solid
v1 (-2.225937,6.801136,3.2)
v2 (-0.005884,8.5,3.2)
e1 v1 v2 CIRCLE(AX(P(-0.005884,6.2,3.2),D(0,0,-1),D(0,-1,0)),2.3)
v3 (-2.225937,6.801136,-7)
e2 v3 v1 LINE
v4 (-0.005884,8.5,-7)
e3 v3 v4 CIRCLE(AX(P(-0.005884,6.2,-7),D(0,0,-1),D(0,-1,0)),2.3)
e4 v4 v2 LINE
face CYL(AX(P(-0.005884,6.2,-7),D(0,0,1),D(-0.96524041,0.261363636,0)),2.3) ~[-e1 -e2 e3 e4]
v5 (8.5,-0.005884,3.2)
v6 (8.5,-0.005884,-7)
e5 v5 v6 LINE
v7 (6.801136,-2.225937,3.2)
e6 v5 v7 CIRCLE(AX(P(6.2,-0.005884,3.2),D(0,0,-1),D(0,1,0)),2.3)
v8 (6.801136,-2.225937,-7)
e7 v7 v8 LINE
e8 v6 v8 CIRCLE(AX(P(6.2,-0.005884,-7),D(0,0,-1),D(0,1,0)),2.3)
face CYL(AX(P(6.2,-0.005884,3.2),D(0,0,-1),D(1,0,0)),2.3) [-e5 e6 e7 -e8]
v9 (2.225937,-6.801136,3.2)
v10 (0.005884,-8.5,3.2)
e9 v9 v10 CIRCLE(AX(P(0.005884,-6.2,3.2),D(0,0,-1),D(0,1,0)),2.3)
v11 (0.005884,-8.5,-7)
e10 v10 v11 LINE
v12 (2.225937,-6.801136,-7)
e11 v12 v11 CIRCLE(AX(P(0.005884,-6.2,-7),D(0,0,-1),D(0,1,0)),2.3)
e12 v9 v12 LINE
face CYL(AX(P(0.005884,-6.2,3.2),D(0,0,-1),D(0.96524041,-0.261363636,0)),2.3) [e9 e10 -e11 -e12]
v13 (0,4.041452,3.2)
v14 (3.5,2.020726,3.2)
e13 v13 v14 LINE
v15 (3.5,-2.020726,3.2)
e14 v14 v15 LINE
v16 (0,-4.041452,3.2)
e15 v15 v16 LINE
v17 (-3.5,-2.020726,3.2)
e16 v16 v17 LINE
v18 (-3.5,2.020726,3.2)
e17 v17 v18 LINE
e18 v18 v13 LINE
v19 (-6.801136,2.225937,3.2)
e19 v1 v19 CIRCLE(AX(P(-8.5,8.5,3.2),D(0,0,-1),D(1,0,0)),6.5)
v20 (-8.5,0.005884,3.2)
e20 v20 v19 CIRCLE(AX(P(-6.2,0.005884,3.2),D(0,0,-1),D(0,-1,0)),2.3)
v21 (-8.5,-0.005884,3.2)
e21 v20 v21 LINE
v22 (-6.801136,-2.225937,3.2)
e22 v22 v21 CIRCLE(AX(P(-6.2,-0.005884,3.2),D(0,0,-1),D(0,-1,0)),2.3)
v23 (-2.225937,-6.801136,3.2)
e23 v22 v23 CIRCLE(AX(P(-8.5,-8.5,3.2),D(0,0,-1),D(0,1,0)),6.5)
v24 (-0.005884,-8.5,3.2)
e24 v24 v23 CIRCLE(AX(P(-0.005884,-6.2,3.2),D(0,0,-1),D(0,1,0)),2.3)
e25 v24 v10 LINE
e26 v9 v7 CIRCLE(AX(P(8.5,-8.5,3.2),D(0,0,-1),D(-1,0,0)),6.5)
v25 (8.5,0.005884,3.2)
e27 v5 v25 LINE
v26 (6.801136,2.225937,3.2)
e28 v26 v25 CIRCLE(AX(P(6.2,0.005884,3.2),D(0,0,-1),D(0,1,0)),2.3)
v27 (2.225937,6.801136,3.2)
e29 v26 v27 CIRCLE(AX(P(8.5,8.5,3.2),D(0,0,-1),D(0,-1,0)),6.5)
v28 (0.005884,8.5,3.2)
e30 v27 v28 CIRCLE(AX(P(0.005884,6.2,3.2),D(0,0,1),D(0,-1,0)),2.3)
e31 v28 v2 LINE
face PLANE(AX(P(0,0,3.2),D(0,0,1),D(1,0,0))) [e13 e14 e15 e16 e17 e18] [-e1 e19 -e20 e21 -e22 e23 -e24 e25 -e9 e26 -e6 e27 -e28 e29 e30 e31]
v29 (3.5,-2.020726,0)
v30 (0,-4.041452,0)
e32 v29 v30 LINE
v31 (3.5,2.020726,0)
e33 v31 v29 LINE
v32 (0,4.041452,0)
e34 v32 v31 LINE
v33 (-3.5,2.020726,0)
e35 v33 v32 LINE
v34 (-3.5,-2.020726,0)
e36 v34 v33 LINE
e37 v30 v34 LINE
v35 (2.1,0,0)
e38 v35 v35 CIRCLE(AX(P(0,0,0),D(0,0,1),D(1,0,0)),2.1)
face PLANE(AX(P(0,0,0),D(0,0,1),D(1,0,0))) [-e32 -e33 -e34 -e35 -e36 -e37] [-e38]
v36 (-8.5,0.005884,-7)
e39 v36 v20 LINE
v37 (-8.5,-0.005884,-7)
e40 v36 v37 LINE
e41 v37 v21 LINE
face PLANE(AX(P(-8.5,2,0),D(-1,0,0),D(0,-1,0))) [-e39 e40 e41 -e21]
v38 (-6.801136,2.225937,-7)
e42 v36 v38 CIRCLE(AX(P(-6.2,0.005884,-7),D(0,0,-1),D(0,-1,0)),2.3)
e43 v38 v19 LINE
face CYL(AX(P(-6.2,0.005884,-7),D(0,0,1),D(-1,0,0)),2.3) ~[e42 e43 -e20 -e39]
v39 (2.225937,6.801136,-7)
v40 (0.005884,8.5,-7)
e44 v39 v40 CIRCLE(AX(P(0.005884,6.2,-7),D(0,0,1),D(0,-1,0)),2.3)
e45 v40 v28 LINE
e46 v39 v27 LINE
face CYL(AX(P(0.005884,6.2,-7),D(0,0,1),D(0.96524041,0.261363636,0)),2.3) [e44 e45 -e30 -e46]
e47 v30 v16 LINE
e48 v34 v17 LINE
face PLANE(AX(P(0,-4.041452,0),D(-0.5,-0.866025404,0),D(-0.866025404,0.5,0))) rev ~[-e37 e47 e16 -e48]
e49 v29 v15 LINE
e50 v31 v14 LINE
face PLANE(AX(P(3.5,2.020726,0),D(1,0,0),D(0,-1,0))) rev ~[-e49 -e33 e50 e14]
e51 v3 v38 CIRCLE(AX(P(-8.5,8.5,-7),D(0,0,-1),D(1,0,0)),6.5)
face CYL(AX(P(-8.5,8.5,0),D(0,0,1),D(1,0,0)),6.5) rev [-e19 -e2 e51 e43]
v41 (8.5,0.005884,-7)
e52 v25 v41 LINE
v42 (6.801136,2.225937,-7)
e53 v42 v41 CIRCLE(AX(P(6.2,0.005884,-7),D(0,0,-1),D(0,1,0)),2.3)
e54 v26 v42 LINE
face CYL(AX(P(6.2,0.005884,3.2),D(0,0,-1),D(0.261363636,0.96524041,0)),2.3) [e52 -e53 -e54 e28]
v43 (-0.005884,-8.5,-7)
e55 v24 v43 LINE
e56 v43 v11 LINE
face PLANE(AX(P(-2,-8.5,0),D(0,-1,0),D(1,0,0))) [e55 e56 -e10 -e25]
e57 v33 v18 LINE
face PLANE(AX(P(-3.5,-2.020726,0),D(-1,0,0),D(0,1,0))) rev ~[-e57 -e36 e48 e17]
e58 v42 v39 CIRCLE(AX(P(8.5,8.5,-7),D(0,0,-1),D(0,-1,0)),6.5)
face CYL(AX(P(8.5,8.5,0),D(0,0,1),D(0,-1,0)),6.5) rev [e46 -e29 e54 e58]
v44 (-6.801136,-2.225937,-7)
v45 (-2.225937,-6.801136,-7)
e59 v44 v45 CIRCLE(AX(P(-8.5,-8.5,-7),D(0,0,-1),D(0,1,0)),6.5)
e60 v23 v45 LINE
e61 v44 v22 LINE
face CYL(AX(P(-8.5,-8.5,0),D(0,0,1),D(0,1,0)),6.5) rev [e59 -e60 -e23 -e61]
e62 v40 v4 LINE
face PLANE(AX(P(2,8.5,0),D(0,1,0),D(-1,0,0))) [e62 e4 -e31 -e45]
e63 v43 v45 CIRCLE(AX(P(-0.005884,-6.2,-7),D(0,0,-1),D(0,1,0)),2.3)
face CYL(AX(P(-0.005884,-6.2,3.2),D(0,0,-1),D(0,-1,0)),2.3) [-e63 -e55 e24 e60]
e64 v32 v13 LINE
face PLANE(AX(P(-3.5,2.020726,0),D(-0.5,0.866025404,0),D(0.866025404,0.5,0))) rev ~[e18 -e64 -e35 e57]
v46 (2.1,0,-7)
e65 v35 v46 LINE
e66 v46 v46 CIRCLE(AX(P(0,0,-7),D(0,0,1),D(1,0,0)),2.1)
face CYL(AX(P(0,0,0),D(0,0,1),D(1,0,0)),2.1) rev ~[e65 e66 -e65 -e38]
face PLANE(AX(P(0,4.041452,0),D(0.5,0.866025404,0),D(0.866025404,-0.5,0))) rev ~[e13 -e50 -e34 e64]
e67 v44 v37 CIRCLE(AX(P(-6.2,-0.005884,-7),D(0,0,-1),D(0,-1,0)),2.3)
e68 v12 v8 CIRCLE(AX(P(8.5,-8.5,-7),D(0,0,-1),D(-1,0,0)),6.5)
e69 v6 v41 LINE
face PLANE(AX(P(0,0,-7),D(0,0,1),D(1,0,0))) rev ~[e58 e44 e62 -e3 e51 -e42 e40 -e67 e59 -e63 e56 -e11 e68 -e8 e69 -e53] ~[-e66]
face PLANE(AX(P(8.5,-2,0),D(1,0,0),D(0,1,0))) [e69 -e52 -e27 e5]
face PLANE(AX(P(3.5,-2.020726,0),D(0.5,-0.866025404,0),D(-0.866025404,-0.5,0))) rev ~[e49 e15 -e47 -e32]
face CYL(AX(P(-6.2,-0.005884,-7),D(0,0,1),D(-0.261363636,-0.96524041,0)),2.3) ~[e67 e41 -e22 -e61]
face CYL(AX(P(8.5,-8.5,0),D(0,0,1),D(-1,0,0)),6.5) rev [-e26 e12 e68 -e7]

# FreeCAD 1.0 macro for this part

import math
import FreeCAD as App
import Part
import Sketcher
from FreeCAD import Vector
Q = App.Units.Quantity


def edges_at(feature, points):
    """Names of the edges that pass closest to the given points."""
    edges = feature.Shape.Edges
    near = lambda p: min(range(len(edges)), key=lambda i: edges[i].distToShape(Part.Vertex(*p))[0])
    return sorted({f"Edge{near(p) + 1}" for p in points})

doc = App.newDocument("Part")
params = doc.addObject("Spreadsheet::Sheet", "Params")
for row, (alias, value) in enumerate([
    ("sketch1_radius", "6.5 mm"),
    ("sketch1_width", "4 mm"),
    ("pad1_length", "3.2 mm"),
    ("sketch2_diameter", "4.2 mm"),
    ("sketch2_radius", "6.5 mm"),
    ("sketch2_width", "4 mm"),
    ("pad2_length", "7 mm"),
    ("fillet_radius", "2.3 mm"),
], start=1):
    params.set(f"A{row}", alias)
    params.set(f"B{row}", "=" + value)
    params.setAlias(f"B{row}", alias)

body = doc.addObject("PartDesign::Body", "Body")

# Sketch on XY plane
sketch1 = body.newObject("Sketcher::SketchObject", "Sketch")
sketch1.AttachmentSupport = (doc.getObject("XY_Plane"), [""])
sketch1.MapMode = "FlatFace"
sketch1.addGeometry(Part.ArcOfCircle(Part.Circle(Vector(8.5, 8.5, 0), Vector(0, 0, 1), 6.5), math.radians(180), math.radians(270)), False)
sketch1.addGeometry(Part.LineSegment(Vector(2, 8.5, 0), Vector(-2, 8.5, 0)), False)
sketch1.addGeometry(Part.ArcOfCircle(Part.Circle(Vector(-8.5, 8.5, 0), Vector(0, 0, 1), 6.5), math.radians(-90), math.radians(0)), False)
sketch1.addGeometry(Part.LineSegment(Vector(-8.5, 2, 0), Vector(-8.5, -2, 0)), False)
sketch1.addGeometry(Part.ArcOfCircle(Part.Circle(Vector(-8.5, -8.5, 0), Vector(0, 0, 1), 6.5), math.radians(0), math.radians(90)), False)
sketch1.addGeometry(Part.LineSegment(Vector(-2, -8.5, 0), Vector(2, -8.5, 0)), False)
sketch1.addGeometry(Part.ArcOfCircle(Part.Circle(Vector(8.5, -8.5, 0), Vector(0, 0, 1), 6.5), math.radians(90), math.radians(180)), False)
sketch1.addGeometry(Part.LineSegment(Vector(8.5, -2, 0), Vector(8.5, 2, 0)), False)
sketch1.addGeometry(Part.LineSegment(Vector(-3.5, 2.020726, 0), Vector(0, 4.041452, 0)), False)
sketch1.addGeometry(Part.LineSegment(Vector(0, 4.041452, 0), Vector(3.5, 2.020726, 0)), False)
sketch1.addGeometry(Part.LineSegment(Vector(3.5, 2.020726, 0), Vector(3.5, -2.020726, 0)), False)
sketch1.addGeometry(Part.LineSegment(Vector(3.5, -2.020726, 0), Vector(0, -4.041452, 0)), False)
sketch1.addGeometry(Part.LineSegment(Vector(0, -4.041452, 0), Vector(-3.5, -2.020726, 0)), False)
sketch1.addGeometry(Part.LineSegment(Vector(-3.5, -2.020726, 0), Vector(-3.5, 2.020726, 0)), False)
sketch1.addConstraint(Sketcher.Constraint("Coincident", 0, 1, 1, 1))
sketch1.addConstraint(Sketcher.Constraint("Coincident", 1, 2, 2, 2))
sketch1.addConstraint(Sketcher.Constraint("Coincident", 2, 1, 3, 1))
sketch1.addConstraint(Sketcher.Constraint("Coincident", 3, 2, 4, 2))
sketch1.addConstraint(Sketcher.Constraint("Coincident", 4, 1, 5, 1))
sketch1.addConstraint(Sketcher.Constraint("Coincident", 5, 2, 6, 2))
sketch1.addConstraint(Sketcher.Constraint("Coincident", 6, 1, 7, 1))
sketch1.addConstraint(Sketcher.Constraint("Coincident", 7, 2, 0, 2))
sketch1.addConstraint(Sketcher.Constraint("Coincident", 8, 2, 9, 1))
sketch1.addConstraint(Sketcher.Constraint("Coincident", 9, 2, 10, 1))
sketch1.addConstraint(Sketcher.Constraint("Coincident", 10, 2, 11, 1))
sketch1.addConstraint(Sketcher.Constraint("Coincident", 11, 2, 12, 1))
sketch1.addConstraint(Sketcher.Constraint("Coincident", 12, 2, 13, 1))
sketch1.addConstraint(Sketcher.Constraint("Coincident", 13, 2, 8, 1))
sketch1.addConstraint(Sketcher.Constraint("Horizontal", 1))
sketch1.addConstraint(Sketcher.Constraint("Vertical", 3))
sketch1.addConstraint(Sketcher.Constraint("Horizontal", 5))
sketch1.addConstraint(Sketcher.Constraint("Vertical", 7))
sketch1.addConstraint(Sketcher.Constraint("Vertical", 10))
sketch1.addConstraint(Sketcher.Constraint("Vertical", 13))
sketch1.addConstraint(Sketcher.Constraint("Equal", 0, 2))
sketch1.addConstraint(Sketcher.Constraint("Equal", 2, 4))
sketch1.addConstraint(Sketcher.Constraint("Equal", 4, 6))
sketch1.addConstraint(Sketcher.Constraint("Symmetric", 0, 3, 4, 3, -1, 1))
sketch1.addConstraint(Sketcher.Constraint("Symmetric", 2, 3, 6, 3, -1, 1))
sketch1.addConstraint(Sketcher.Constraint("Symmetric", 8, 2, 11, 2, -1, 1))
sketch1.addConstraint(Sketcher.Constraint("Symmetric", 9, 2, 12, 2, -1, 1))
sketch1.addConstraint(Sketcher.Constraint("Symmetric", 0, 3, 2, 3, -2))
sketch1.addConstraint(Sketcher.Constraint("PointOnObject", 8, 2, -2))
sketch1.addConstraint(Sketcher.Constraint("Parallel", 8, 11))
sketch1.addConstraint(Sketcher.Constraint("Horizontal", 2, 3, 0, 1))
sketch1.addConstraint(Sketcher.Constraint("Horizontal", 6, 3, 4, 1))
sketch1.addConstraint(Sketcher.Constraint("Horizontal", 10, 2, 12, 2))
sketch1.addConstraint(Sketcher.Constraint("Vertical", 4, 3, 2, 1))
sketch1.addConstraint(Sketcher.Constraint("Vertical", 0, 3, 6, 1))
sketch1.addConstraint(Sketcher.Constraint("Equal", 5, 3))
sketch1.addConstraint(Sketcher.Constraint("Radius", 0, Q("6.5 mm")))
sketch1.addConstraint(Sketcher.Constraint("DistanceX", 1, 2, 1, 1, Q("4 mm")))
sketch1.addConstraint(Sketcher.Constraint("Angle", 8, Q("30 deg")))
sketch1.addConstraint(Sketcher.Constraint("DistanceX", 9, 2, 7, 2, Q("5 mm")))
sketch1.addConstraint(Sketcher.Constraint("DistanceY", 10, 2, 10, 1, Q("4.041452 mm")))
sketch1.setExpression("Constraints[36]", "Params.sketch1_radius")
sketch1.setExpression("Constraints[37]", "Params.sketch1_width")
pad1 = body.newObject("PartDesign::Pad", "Pad")
pad1.Profile = sketch1
pad1.setExpression("Length", "Params.pad1_length")

# Sketch on XY plane
sketch2 = body.newObject("Sketcher::SketchObject", "Sketch001")
sketch2.AttachmentSupport = (doc.getObject("XY_Plane"), [""])
sketch2.MapMode = "FlatFace"
sketch2.addGeometry(Part.ArcOfCircle(Part.Circle(Vector(8.5, 8.5, 0), Vector(0, 0, 1), 6.5), math.radians(180), math.radians(270)), False)
sketch2.addGeometry(Part.LineSegment(Vector(2, 8.5, 0), Vector(-2, 8.5, 0)), False)
sketch2.addGeometry(Part.ArcOfCircle(Part.Circle(Vector(-8.5, 8.5, 0), Vector(0, 0, 1), 6.5), math.radians(-90), math.radians(0)), False)
sketch2.addGeometry(Part.LineSegment(Vector(-8.5, 2, 0), Vector(-8.5, -2, 0)), False)
sketch2.addGeometry(Part.ArcOfCircle(Part.Circle(Vector(-8.5, -8.5, 0), Vector(0, 0, 1), 6.5), math.radians(0), math.radians(90)), False)
sketch2.addGeometry(Part.LineSegment(Vector(-2, -8.5, 0), Vector(2, -8.5, 0)), False)
sketch2.addGeometry(Part.ArcOfCircle(Part.Circle(Vector(8.5, -8.5, 0), Vector(0, 0, 1), 6.5), math.radians(90), math.radians(180)), False)
sketch2.addGeometry(Part.LineSegment(Vector(8.5, -2, 0), Vector(8.5, 2, 0)), False)
sketch2.addGeometry(Part.Circle(Vector(0, 0, 0), Vector(0, 0, 1), 2.1), False)
sketch2.addConstraint(Sketcher.Constraint("Coincident", 0, 1, 1, 1))
sketch2.addConstraint(Sketcher.Constraint("Coincident", 1, 2, 2, 2))
sketch2.addConstraint(Sketcher.Constraint("Coincident", 2, 1, 3, 1))
sketch2.addConstraint(Sketcher.Constraint("Coincident", 3, 2, 4, 2))
sketch2.addConstraint(Sketcher.Constraint("Coincident", 4, 1, 5, 1))
sketch2.addConstraint(Sketcher.Constraint("Coincident", 5, 2, 6, 2))
sketch2.addConstraint(Sketcher.Constraint("Coincident", 6, 1, 7, 1))
sketch2.addConstraint(Sketcher.Constraint("Coincident", 7, 2, 0, 2))
sketch2.addConstraint(Sketcher.Constraint("Horizontal", 1))
sketch2.addConstraint(Sketcher.Constraint("Vertical", 3))
sketch2.addConstraint(Sketcher.Constraint("Horizontal", 5))
sketch2.addConstraint(Sketcher.Constraint("Vertical", 7))
sketch2.addConstraint(Sketcher.Constraint("Coincident", 8, 3, -1, 1))
sketch2.addConstraint(Sketcher.Constraint("Equal", 0, 2))
sketch2.addConstraint(Sketcher.Constraint("Equal", 2, 4))
sketch2.addConstraint(Sketcher.Constraint("Equal", 4, 6))
sketch2.addConstraint(Sketcher.Constraint("Symmetric", 0, 3, 4, 3, -1, 1))
sketch2.addConstraint(Sketcher.Constraint("Symmetric", 2, 3, 6, 3, -1, 1))
sketch2.addConstraint(Sketcher.Constraint("Symmetric", 0, 3, 2, 3, -2))
sketch2.addConstraint(Sketcher.Constraint("Horizontal", 2, 3, 0, 1))
sketch2.addConstraint(Sketcher.Constraint("Horizontal", 6, 3, 4, 1))
sketch2.addConstraint(Sketcher.Constraint("Vertical", 4, 3, 2, 1))
sketch2.addConstraint(Sketcher.Constraint("Vertical", 0, 3, 6, 1))
sketch2.addConstraint(Sketcher.Constraint("Equal", 5, 3))
sketch2.addConstraint(Sketcher.Constraint("Diameter", 8, Q("4.2 mm")))
sketch2.addConstraint(Sketcher.Constraint("Radius", 0, Q("6.5 mm")))
sketch2.addConstraint(Sketcher.Constraint("DistanceX", 1, 2, 1, 1, Q("4 mm")))
sketch2.setExpression("Constraints[24]", "Params.sketch2_diameter")
sketch2.setExpression("Constraints[25]", "Params.sketch2_radius")
sketch2.setExpression("Constraints[26]", "Params.sketch2_width")
pad2 = body.newObject("PartDesign::Pad", "Pad001")
pad2.Profile = sketch2
pad2.setExpression("Length", "Params.pad2_length")
pad2.Reversed = True
doc.recompute()

fillet = body.newObject("PartDesign::Fillet", "Fillet")
fillet.Base = (pad2, edges_at(pad2, [
    (8.5, 2, -1.9),
    (8.5, -2, -1.9),
    (2, -8.5, -1.9),
    (2, 8.5, -1.9),
    (-2, 8.5, -1.9),
    (-8.5, 2, -1.9),
    (-8.5, -2, -1.9),
    (-2, -8.5, -1.9),
]))
fillet.setExpression("Radius", "Params.fillet_radius")

doc.recompute()
